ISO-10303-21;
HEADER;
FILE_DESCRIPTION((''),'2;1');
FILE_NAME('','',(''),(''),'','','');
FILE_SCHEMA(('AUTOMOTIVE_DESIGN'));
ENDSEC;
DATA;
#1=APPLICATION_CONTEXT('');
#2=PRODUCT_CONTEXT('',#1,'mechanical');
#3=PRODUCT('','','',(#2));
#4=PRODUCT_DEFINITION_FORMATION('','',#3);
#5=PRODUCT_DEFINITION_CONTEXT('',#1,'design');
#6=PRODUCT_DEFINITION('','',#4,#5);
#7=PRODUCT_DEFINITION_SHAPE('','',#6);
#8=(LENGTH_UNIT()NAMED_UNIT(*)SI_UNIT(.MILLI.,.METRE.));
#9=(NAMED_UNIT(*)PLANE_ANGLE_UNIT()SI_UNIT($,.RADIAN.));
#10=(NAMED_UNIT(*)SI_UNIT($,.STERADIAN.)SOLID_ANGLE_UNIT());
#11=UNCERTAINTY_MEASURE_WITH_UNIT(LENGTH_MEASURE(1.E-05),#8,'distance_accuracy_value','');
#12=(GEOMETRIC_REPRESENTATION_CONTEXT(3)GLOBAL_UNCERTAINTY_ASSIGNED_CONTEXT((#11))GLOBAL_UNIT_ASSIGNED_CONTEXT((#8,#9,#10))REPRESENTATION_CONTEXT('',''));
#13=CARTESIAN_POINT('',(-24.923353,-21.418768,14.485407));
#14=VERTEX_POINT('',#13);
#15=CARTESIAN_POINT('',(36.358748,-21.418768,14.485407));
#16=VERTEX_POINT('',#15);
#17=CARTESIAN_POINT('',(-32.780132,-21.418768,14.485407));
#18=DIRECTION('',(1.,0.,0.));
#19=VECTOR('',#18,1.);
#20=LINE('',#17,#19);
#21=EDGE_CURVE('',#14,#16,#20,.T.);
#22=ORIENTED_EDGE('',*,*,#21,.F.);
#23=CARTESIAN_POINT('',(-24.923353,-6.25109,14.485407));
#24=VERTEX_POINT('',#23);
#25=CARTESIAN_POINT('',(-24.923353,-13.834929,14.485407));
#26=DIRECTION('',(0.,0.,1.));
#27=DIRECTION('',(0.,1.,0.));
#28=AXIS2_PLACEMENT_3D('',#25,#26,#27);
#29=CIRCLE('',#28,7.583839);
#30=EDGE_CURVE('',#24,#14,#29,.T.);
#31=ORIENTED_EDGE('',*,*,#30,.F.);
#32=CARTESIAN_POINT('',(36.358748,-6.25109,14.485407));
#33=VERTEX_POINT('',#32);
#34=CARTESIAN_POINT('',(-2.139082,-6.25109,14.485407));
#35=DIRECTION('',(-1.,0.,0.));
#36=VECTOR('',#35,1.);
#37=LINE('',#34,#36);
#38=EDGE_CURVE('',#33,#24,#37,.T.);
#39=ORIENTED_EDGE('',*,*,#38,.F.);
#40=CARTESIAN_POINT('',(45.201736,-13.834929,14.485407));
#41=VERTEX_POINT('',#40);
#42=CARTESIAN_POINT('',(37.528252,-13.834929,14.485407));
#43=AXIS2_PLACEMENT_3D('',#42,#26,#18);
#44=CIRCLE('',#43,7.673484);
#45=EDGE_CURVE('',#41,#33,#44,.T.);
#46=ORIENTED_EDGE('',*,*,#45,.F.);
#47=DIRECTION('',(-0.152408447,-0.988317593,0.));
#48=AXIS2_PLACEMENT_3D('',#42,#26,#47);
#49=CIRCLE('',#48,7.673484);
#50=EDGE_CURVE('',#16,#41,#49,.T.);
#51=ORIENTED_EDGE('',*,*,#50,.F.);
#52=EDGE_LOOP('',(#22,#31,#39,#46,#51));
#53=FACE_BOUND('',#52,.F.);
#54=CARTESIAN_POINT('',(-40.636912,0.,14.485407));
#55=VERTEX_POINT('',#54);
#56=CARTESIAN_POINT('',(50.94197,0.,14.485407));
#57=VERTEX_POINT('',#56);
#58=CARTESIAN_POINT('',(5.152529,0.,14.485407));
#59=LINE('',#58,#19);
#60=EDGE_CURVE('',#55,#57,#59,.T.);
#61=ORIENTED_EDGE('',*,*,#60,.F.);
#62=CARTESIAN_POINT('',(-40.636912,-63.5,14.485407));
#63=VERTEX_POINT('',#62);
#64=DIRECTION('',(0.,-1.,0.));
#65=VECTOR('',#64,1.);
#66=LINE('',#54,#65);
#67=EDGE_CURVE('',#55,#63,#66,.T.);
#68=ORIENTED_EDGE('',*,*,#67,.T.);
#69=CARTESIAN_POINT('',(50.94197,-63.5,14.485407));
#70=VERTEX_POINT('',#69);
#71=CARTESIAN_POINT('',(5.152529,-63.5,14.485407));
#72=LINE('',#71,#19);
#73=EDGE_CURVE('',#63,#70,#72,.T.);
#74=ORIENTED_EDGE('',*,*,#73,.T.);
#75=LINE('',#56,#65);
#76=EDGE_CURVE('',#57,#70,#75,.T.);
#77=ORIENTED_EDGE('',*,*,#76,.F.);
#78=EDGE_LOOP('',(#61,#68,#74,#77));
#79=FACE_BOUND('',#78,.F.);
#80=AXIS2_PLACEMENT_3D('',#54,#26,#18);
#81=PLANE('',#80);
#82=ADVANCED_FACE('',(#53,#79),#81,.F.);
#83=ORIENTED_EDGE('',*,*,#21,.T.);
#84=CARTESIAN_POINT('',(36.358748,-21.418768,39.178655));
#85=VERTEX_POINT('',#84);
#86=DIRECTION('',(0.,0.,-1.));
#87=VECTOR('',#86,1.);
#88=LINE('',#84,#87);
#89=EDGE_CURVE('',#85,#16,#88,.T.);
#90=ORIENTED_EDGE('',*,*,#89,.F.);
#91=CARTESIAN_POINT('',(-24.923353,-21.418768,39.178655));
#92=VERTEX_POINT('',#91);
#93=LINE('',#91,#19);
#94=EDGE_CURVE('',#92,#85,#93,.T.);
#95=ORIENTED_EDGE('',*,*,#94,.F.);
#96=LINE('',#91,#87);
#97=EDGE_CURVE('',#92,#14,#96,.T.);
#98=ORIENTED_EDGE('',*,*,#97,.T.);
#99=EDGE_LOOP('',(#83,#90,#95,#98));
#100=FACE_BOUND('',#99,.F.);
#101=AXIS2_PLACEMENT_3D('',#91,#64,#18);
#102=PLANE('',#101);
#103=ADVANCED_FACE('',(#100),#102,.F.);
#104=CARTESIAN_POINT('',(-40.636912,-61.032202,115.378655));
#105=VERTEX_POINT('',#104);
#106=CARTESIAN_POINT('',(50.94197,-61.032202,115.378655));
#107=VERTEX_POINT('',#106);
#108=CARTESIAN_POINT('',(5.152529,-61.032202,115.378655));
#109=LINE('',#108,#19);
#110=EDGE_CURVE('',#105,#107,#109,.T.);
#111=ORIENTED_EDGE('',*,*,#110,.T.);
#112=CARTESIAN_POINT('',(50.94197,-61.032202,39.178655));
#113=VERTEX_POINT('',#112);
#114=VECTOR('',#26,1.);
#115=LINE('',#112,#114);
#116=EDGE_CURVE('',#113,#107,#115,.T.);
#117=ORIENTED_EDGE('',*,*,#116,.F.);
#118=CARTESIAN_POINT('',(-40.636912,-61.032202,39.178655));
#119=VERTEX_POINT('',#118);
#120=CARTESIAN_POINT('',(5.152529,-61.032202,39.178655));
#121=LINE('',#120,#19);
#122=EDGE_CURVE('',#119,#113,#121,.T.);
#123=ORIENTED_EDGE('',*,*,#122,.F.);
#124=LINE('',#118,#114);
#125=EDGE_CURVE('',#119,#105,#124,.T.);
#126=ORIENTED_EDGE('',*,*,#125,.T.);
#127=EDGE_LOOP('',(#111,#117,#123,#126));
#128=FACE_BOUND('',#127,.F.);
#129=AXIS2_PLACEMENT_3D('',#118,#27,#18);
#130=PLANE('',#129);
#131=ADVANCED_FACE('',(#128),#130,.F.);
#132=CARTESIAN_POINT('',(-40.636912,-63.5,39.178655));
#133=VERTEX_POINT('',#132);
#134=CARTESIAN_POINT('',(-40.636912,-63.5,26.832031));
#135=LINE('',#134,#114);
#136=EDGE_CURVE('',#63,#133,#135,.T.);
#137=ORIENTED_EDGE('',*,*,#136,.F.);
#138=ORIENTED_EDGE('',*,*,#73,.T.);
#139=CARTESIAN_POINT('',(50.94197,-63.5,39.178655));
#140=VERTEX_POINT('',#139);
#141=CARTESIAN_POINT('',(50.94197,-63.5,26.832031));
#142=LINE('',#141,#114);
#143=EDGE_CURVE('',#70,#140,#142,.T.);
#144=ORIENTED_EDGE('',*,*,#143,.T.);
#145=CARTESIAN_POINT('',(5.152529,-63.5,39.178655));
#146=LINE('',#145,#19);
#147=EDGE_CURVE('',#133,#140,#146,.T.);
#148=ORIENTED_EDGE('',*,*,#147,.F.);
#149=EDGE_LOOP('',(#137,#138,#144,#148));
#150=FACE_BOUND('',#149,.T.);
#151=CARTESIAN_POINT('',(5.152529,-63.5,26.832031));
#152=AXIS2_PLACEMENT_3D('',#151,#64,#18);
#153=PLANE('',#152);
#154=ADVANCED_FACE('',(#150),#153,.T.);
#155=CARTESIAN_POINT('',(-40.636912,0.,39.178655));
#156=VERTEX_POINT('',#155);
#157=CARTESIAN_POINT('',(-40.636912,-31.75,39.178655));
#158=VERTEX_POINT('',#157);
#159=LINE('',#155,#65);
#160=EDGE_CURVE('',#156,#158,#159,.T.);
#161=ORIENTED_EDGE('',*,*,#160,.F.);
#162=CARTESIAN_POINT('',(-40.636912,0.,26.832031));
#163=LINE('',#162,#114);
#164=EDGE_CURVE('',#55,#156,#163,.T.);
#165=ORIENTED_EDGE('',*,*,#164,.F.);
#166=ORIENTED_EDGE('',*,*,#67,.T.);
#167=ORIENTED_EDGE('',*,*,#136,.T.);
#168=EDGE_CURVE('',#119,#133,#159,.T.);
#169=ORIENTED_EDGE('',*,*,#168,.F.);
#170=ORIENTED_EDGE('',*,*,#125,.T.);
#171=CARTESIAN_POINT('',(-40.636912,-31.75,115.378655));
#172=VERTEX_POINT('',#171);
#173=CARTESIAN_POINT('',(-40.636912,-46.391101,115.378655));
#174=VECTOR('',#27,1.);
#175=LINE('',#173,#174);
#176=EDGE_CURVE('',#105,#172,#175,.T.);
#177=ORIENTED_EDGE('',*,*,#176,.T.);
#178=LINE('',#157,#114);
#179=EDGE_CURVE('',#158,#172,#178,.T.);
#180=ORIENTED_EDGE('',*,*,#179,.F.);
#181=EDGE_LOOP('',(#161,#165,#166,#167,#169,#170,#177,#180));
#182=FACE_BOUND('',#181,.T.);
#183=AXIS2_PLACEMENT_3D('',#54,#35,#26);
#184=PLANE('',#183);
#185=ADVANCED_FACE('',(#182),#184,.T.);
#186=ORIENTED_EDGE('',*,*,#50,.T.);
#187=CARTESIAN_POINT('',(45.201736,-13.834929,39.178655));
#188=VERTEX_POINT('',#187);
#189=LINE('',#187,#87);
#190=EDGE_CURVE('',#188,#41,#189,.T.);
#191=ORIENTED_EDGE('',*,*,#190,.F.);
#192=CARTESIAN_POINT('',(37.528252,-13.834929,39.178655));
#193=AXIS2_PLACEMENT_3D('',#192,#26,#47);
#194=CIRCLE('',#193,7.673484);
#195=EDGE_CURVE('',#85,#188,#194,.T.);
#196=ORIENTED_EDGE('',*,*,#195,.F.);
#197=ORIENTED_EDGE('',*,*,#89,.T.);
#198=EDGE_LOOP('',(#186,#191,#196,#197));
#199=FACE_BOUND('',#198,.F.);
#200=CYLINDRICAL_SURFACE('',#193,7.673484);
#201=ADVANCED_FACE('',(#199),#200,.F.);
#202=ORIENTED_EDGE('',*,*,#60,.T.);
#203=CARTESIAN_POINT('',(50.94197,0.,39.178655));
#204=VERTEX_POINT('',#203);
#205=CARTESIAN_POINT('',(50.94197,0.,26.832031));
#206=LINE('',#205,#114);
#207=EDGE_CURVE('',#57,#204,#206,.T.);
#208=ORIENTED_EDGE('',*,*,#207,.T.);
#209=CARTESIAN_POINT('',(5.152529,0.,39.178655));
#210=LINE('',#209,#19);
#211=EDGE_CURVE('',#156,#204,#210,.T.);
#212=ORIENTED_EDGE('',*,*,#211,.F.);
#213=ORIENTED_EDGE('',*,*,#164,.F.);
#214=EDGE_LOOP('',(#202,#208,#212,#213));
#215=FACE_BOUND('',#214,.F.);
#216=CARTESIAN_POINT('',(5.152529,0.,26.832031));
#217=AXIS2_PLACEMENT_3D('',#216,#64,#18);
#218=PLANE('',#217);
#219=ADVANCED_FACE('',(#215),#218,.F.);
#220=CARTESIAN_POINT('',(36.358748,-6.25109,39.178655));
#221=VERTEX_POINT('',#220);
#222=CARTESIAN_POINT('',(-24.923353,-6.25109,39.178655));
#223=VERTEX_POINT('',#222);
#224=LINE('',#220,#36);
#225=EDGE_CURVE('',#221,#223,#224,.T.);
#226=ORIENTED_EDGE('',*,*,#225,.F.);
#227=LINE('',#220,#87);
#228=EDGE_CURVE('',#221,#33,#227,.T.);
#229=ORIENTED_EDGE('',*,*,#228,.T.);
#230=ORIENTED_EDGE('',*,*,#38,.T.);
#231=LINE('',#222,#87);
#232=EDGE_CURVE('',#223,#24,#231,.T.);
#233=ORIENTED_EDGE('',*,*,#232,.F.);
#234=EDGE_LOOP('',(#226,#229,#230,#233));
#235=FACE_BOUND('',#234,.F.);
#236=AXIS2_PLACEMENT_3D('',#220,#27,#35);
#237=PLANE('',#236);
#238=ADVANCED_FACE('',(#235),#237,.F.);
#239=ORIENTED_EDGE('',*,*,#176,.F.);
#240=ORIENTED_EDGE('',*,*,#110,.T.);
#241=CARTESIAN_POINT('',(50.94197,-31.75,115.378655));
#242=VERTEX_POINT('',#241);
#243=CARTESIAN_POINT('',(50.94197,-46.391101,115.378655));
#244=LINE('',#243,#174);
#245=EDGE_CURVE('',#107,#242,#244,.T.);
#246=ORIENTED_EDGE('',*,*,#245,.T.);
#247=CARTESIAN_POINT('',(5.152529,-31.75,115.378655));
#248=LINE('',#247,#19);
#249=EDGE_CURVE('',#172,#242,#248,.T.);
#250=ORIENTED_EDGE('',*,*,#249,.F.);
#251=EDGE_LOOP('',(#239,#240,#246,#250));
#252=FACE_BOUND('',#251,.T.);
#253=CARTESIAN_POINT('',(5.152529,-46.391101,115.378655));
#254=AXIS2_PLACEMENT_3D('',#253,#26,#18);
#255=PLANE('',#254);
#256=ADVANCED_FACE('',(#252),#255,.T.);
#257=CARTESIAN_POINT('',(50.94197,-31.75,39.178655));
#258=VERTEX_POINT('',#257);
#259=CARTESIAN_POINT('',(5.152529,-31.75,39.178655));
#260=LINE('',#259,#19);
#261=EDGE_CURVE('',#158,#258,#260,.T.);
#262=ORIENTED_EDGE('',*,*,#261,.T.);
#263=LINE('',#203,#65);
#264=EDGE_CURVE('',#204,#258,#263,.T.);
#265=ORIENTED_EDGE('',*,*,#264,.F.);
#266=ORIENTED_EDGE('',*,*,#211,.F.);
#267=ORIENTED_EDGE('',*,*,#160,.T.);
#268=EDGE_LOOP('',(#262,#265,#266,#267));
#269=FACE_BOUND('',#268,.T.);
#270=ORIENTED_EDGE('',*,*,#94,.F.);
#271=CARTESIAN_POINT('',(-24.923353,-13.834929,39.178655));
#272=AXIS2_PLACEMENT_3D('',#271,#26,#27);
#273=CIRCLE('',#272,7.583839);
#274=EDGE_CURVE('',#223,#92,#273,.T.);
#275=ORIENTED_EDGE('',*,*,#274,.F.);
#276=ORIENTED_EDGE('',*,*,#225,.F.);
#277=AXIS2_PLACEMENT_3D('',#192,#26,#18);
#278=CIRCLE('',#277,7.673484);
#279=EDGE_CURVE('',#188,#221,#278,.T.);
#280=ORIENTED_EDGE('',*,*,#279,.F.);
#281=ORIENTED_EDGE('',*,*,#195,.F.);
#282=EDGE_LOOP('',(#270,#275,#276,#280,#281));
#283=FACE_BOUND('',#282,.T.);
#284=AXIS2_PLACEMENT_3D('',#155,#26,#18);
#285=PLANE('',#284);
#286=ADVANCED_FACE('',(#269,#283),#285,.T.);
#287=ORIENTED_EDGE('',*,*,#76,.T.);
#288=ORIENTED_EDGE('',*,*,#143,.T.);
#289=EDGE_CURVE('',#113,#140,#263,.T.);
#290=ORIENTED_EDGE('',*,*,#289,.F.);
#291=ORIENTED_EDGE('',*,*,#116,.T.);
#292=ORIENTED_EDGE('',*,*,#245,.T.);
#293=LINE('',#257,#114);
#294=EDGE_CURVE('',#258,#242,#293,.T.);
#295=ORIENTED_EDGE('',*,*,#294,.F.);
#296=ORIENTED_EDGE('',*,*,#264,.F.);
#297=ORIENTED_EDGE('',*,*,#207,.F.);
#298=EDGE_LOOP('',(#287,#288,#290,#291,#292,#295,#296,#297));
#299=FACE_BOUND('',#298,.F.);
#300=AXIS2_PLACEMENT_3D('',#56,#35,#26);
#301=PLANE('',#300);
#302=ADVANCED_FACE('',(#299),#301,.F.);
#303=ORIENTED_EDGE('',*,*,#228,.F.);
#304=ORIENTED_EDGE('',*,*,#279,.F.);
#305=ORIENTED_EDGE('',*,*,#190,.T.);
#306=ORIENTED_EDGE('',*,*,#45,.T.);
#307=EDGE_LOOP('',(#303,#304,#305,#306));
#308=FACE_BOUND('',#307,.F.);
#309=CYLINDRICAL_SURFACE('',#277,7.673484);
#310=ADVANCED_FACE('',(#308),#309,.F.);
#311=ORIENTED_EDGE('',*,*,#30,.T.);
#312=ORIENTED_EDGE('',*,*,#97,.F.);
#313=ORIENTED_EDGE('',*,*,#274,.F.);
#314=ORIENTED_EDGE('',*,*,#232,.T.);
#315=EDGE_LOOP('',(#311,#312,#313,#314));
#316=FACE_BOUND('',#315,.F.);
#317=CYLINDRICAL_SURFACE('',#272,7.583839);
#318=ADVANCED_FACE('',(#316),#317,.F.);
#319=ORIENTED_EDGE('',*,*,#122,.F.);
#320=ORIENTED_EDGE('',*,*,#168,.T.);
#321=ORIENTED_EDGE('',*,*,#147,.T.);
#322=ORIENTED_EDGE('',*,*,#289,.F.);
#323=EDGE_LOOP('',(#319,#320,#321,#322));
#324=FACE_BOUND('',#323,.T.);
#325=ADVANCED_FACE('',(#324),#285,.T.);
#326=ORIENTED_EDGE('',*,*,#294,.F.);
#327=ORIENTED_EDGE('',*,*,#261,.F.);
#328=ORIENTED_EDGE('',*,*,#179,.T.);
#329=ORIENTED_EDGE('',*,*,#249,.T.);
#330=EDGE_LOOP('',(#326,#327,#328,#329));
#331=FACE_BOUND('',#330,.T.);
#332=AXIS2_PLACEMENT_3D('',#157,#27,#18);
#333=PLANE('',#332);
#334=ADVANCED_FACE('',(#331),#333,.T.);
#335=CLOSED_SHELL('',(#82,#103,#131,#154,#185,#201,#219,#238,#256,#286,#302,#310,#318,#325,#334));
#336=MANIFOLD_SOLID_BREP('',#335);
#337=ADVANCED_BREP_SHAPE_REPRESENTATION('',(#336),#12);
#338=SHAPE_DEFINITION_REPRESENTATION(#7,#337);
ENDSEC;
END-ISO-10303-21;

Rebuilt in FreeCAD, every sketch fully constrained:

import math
import FreeCAD as App
import Part
import Sketcher
from FreeCAD import Vector
Q = App.Units.Quantity

doc = App.newDocument("Part")
body = doc.addObject("PartDesign::Body", "Body")

# Sketch on XZ plane
sketch1 = body.newObject("Sketcher::SketchObject", "Sketch")
sketch1.AttachmentSupport = (doc.getObject("XZ_Plane"), [""])
sketch1.MapMode = "FlatFace"
sketch1.addGeometry([
    Part.LineSegment(Vector(-41, 39, 0), Vector(-41, 14, 0)),
    Part.LineSegment(Vector(-41, 14, 0), Vector(51, 14, 0)),
    Part.LineSegment(Vector(51, 14, 0), Vector(51, 39, 0)),
    Part.LineSegment(Vector(51, 39, 0), Vector(-41, 39, 0)),
], False)
sketch1.addConstraint([
    Sketcher.Constraint("Coincident", 0, 2, 1, 1),
    Sketcher.Constraint("Coincident", 1, 2, 2, 1),
    Sketcher.Constraint("Coincident", 2, 2, 3, 1),
    Sketcher.Constraint("Coincident", 3, 2, 0, 1),
    Sketcher.Constraint("Vertical", 0),
    Sketcher.Constraint("Horizontal", 1),
    Sketcher.Constraint("Vertical", 2),
    Sketcher.Constraint("Horizontal", 3),
    Sketcher.Constraint("DistanceX", 1, 1, 1, 2, 91.578882),
    Sketcher.Constraint("DistanceY", 0, 2, 0, 1, 24.693248),
    Sketcher.Constraint("DistanceX", 0, 2, -1, 1, 40.636912),
    Sketcher.Constraint("DistanceY", -1, 1, 0, 2, 14.485407),
])
pad1 = body.newObject("PartDesign::Pad", "Pad")
pad1.Profile = sketch1
pad1.Length = Q("2.5 in")

# Sketch on XY plane
sketch2 = body.newObject("Sketcher::SketchObject", "Sketch001")
sketch2.AttachmentSupport = (doc.getObject("XY_Plane"), [""])
sketch2.MapMode = "FlatFace"
sketch2.AttachmentOffset = App.Placement(Vector(0, 0, 39.178655), App.Rotation())
sketch2.addGeometry([
    Part.LineSegment(Vector(-25, -21, 0), Vector(36, -21, 0)),  # 0
    Part.ArcOfCircle(Part.Circle(Vector(38, -14, 0), Vector(0, 0, 1), 8), math.radians(-99), math.radians(0)),  # 1
    Part.ArcOfCircle(Part.Circle(Vector(38, -14, 0), Vector(0, 0, 1), 8), math.radians(0), math.radians(99)),  # 2
    Part.LineSegment(Vector(36, -6, 0), Vector(-25, -6, 0)),  # 3
    Part.ArcOfCircle(Part.Circle(Vector(-25, -14, 0), Vector(0, 0, 1), 8), math.radians(90), math.radians(270)),  # 4
], False)
sketch2.addConstraint([
    Sketcher.Constraint("Coincident", 0, 2, 1, 1),
    Sketcher.Constraint("Tangent", 1, 2, 2, 1),
    Sketcher.Constraint("Coincident", 2, 2, 3, 1),
    Sketcher.Constraint("Tangent", 3, 2, 4, 1),
    Sketcher.Constraint("Tangent", 4, 2, 0, 1),
    Sketcher.Constraint("Horizontal", 0),
    Sketcher.Constraint("Horizontal", 3),
    Sketcher.Constraint("Equal", 1, 2),
    Sketcher.Constraint("Horizontal", 2, 3, 4, 3),
    Sketcher.Constraint("Horizontal", 4, 3, 1, 2),
    Sketcher.Constraint("Radius", 4, 7.583839),
    Sketcher.Constraint("DistanceX", 0, 1, 0, 2, 61.282101),
    Sketcher.Constraint("Radius", 1, 7.673484),
    Sketcher.Constraint("DistanceY", 1, 3, -1, 1, 13.834929),
    Sketcher.Constraint("DistanceX", -1, 1, 0, 2, 36.358748),
])
pocket1 = body.newObject("PartDesign::Pocket", "Pocket")
pocket1.Profile = sketch2
pocket1.Type = "ThroughAll"

# Sketch on XY plane
sketch3 = body.newObject("Sketcher::SketchObject", "Sketch002")
sketch3.AttachmentSupport = (doc.getObject("XY_Plane"), [""])
sketch3.MapMode = "FlatFace"
sketch3.AttachmentOffset = App.Placement(Vector(0, 0, 39.178655), App.Rotation())
sketch3.addGeometry([
    Part.LineSegment(Vector(-41, -32, 0), Vector(-41, -61, 0)),
    Part.LineSegment(Vector(-41, -61, 0), Vector(51, -61, 0)),
    Part.LineSegment(Vector(51, -61, 0), Vector(51, -32, 0)),
    Part.LineSegment(Vector(51, -32, 0), Vector(-41, -32, 0)),
], False)
sketch3.addConstraint([
    Sketcher.Constraint("Coincident", 0, 2, 1, 1),
    Sketcher.Constraint("Coincident", 1, 2, 2, 1),
    Sketcher.Constraint("Coincident", 2, 2, 3, 1),
    Sketcher.Constraint("Coincident", 3, 2, 0, 1),
    Sketcher.Constraint("Vertical", 0),
    Sketcher.Constraint("Horizontal", 1),
    Sketcher.Constraint("Vertical", 2),
    Sketcher.Constraint("Horizontal", 3),
    Sketcher.Constraint("DistanceY", 2, 2, -1, 1, Q("1.25 in")),
    Sketcher.Constraint("DistanceX", 1, 1, 1, 2, 91.578882),
    Sketcher.Constraint("DistanceY", 0, 2, 0, 1, 29.282202),
    Sketcher.Constraint("DistanceX", 0, 2, -1, 1, 40.636912),
])
pad2 = body.newObject("PartDesign::Pad", "Pad001")
pad2.Profile = sketch3
pad2.Length = Q("3 in")

doc.recompute()
